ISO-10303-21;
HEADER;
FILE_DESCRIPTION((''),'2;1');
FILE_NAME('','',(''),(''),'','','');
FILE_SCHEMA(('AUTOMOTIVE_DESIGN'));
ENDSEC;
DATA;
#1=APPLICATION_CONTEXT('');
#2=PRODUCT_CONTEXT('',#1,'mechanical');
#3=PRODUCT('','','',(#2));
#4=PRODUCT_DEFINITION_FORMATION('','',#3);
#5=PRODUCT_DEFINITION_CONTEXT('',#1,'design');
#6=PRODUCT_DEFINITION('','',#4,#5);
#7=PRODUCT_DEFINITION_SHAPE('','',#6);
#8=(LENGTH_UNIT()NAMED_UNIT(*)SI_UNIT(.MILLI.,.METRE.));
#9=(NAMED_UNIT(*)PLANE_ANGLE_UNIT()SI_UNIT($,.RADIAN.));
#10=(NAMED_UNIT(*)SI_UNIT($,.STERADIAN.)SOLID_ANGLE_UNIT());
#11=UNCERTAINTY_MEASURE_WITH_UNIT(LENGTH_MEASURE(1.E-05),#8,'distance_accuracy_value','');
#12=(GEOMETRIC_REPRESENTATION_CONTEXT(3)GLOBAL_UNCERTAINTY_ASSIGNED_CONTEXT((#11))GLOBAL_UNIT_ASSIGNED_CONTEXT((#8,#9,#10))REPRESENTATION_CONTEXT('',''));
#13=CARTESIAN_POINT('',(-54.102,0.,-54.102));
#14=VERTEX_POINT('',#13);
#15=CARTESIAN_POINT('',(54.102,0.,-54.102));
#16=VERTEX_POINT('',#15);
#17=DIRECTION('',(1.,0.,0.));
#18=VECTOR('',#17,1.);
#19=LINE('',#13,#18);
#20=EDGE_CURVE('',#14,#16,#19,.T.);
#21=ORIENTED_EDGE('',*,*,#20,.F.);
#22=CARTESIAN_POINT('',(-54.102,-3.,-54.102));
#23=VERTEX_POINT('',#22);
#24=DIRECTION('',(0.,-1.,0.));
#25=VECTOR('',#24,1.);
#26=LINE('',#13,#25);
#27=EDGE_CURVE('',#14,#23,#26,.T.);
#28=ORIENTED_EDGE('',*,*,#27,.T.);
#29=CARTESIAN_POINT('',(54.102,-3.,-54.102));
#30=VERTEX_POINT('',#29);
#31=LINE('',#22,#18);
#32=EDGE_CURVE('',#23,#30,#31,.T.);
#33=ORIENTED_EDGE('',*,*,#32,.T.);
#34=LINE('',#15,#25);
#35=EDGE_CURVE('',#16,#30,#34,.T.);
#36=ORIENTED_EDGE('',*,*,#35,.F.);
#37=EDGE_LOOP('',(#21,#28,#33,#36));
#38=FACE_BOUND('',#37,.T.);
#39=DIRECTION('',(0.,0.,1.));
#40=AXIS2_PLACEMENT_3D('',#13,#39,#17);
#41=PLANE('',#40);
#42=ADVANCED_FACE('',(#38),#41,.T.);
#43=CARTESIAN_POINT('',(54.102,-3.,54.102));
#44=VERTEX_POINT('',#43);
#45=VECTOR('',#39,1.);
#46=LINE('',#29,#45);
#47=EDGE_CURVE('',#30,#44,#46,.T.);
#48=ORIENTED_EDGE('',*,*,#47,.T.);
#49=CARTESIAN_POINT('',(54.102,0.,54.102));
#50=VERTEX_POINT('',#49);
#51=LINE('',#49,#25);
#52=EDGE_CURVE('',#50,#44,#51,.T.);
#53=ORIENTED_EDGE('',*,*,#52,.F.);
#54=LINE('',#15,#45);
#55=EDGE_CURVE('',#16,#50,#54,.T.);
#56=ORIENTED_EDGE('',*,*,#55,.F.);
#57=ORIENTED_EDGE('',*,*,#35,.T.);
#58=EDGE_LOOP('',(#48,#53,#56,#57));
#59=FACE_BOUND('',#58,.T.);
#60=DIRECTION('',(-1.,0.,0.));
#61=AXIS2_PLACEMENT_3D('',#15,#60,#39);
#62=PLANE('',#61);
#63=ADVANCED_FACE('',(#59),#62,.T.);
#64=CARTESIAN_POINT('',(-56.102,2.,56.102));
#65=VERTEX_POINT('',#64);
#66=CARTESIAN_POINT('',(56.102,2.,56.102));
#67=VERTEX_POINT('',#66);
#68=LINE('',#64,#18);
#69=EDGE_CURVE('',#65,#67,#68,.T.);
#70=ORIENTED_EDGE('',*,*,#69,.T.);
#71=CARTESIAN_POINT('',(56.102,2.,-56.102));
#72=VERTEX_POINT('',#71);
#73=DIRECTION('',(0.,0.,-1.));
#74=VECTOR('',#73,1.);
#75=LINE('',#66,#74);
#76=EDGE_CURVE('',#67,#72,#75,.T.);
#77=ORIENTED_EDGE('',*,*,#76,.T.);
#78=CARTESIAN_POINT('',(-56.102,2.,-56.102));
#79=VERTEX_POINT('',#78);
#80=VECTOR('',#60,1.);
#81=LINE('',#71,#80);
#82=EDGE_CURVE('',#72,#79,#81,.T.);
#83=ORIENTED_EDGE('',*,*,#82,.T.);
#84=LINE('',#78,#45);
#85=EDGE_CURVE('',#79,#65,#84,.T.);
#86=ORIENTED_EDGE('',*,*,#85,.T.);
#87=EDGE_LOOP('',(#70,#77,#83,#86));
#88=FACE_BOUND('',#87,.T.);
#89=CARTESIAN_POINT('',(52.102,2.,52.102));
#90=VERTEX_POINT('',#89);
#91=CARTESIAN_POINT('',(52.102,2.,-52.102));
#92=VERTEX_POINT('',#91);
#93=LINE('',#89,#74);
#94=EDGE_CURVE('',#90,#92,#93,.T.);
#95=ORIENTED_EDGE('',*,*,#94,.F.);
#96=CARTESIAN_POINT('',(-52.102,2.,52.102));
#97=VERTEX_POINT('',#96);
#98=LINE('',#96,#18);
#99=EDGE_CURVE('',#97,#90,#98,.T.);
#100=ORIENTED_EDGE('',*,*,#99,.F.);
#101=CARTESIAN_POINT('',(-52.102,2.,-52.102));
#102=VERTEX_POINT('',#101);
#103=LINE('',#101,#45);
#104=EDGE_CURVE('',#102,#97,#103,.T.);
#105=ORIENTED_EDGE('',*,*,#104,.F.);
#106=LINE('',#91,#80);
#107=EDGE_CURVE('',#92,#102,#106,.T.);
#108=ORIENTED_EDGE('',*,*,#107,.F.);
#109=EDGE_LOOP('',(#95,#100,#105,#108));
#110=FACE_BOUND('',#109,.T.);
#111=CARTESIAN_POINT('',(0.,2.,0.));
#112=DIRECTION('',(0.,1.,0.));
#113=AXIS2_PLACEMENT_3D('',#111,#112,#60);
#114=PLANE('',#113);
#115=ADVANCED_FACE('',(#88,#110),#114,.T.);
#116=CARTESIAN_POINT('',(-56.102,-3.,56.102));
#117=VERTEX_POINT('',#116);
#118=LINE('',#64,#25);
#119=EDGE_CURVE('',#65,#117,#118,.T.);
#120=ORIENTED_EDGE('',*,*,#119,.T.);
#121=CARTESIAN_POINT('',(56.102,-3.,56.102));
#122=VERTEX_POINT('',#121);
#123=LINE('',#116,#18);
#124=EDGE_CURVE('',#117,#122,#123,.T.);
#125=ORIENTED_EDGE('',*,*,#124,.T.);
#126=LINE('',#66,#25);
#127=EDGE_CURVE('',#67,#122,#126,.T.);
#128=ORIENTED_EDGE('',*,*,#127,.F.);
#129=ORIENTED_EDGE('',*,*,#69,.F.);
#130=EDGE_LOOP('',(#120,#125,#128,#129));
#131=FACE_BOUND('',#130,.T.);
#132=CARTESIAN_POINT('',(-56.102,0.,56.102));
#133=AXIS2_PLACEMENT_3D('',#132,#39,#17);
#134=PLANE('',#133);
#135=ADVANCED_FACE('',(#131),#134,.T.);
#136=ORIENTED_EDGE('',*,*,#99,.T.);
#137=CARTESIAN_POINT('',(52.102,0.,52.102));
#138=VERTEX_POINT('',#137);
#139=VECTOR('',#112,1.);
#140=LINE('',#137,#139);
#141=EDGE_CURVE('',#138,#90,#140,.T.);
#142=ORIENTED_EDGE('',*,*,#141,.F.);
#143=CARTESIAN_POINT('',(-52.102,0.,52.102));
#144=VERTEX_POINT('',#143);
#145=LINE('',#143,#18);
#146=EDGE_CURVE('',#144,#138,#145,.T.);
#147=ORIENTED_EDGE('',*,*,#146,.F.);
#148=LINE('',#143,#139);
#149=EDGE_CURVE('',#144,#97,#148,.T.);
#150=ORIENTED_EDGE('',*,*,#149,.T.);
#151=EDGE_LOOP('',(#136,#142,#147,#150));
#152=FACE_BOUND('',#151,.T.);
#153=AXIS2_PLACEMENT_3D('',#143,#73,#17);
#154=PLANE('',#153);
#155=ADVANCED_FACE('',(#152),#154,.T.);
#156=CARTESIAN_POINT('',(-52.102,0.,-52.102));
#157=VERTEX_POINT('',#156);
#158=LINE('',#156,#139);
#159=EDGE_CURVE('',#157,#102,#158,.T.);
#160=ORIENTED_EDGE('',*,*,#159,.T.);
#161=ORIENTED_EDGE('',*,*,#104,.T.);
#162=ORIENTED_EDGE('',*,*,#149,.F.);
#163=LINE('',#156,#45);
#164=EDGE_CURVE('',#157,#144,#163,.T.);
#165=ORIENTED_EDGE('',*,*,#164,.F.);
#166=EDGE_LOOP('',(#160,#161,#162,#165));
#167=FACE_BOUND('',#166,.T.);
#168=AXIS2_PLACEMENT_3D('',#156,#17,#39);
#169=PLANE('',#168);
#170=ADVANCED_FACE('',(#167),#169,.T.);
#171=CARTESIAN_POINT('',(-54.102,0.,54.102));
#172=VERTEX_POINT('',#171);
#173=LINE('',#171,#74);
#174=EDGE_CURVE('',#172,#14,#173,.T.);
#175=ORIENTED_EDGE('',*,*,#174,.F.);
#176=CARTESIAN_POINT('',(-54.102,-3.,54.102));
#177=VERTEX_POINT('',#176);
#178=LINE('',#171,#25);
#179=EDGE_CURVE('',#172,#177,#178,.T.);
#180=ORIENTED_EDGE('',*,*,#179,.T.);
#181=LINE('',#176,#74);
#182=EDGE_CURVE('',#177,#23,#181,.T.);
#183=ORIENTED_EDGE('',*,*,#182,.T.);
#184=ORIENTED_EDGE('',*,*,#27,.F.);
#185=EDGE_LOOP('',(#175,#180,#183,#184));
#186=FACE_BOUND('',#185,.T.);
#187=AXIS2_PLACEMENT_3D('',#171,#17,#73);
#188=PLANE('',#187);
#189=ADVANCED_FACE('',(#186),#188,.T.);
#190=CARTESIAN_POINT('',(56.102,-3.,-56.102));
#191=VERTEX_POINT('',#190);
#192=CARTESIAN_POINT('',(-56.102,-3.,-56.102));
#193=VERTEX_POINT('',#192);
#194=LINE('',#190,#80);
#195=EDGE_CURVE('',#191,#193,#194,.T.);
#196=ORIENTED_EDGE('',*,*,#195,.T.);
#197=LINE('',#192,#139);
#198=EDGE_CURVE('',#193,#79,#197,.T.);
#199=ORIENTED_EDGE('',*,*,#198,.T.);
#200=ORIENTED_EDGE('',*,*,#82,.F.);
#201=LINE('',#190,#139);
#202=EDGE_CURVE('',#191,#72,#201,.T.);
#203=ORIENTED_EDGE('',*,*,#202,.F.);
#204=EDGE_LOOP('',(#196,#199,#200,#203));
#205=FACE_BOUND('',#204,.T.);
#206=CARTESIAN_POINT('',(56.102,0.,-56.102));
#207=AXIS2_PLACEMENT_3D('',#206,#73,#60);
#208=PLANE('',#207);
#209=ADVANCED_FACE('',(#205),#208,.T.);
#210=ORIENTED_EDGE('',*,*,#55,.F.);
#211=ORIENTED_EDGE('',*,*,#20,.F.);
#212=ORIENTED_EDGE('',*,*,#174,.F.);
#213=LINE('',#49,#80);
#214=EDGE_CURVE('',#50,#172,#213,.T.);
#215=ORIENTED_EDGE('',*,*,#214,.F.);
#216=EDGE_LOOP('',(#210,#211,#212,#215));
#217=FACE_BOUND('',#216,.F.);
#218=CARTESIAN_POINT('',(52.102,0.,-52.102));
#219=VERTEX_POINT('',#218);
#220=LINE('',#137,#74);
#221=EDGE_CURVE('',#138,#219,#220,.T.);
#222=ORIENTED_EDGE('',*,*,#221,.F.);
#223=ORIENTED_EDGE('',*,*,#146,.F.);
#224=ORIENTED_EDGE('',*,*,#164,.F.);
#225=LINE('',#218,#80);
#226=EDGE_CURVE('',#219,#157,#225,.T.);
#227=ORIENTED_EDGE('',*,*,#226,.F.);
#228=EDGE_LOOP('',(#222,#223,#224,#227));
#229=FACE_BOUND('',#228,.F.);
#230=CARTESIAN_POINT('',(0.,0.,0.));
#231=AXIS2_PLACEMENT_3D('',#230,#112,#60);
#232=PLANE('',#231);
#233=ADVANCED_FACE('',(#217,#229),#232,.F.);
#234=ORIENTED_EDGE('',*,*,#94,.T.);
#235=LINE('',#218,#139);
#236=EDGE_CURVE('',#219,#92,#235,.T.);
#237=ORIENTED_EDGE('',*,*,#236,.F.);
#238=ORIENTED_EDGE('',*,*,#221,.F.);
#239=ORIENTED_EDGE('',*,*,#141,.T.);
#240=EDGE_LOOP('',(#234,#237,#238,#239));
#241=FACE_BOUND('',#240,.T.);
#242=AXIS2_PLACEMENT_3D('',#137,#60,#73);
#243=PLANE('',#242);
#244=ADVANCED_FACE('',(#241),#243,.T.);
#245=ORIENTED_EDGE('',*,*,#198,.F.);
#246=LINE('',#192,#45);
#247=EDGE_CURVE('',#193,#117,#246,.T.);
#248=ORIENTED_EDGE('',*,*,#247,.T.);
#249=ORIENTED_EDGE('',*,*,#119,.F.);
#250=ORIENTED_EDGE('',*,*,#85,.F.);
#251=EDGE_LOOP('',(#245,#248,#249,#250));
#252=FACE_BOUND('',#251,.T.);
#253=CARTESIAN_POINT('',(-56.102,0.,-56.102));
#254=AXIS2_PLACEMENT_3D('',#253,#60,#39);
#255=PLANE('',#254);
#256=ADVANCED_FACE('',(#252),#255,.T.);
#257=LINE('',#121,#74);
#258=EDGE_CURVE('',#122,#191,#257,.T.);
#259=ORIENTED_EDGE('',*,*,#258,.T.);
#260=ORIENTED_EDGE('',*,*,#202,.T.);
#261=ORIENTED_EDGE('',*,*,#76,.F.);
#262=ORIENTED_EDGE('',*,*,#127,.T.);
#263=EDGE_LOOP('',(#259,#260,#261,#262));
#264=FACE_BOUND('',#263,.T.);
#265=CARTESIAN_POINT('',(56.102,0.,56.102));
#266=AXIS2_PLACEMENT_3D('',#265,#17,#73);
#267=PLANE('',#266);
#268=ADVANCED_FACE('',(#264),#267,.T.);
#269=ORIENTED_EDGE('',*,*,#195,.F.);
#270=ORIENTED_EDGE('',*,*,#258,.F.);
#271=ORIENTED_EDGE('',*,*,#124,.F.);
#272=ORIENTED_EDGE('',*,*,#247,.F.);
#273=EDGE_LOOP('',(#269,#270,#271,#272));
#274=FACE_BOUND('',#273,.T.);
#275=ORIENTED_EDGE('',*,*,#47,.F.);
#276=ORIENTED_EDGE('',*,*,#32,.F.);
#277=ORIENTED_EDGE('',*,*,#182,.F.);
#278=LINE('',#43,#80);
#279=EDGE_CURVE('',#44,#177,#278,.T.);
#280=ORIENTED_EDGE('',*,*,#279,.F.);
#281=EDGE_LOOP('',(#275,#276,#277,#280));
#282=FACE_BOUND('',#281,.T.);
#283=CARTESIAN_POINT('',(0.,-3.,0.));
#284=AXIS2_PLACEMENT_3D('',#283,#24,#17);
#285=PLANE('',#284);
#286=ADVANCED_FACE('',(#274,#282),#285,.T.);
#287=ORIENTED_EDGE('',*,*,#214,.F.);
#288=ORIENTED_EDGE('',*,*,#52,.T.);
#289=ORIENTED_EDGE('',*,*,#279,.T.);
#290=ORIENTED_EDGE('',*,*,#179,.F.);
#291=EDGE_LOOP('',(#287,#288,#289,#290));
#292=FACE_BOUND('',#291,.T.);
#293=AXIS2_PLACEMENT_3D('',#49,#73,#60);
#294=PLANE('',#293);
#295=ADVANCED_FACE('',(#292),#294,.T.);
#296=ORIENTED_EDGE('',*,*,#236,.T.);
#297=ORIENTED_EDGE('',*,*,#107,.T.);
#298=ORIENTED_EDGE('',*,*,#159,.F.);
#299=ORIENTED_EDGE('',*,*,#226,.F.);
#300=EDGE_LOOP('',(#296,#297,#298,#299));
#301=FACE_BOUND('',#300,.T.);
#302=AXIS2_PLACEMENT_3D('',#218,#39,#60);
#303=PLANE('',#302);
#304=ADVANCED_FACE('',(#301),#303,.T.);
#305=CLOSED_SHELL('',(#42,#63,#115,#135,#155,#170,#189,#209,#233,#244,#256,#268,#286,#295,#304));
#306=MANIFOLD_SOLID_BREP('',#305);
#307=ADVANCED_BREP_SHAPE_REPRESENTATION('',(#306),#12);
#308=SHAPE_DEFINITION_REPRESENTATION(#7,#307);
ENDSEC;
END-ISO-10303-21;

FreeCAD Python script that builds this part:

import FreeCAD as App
import Part
import Sketcher
from FreeCAD import Vector


def add_polygon(sketch, points):
    """Adds a closed chain of lines whose ends are joined by coincident constraints."""
    first, n = sketch.GeometryCount, len(points)
    for a, b in zip(points, points[1:] + points[:1]):
        sketch.addGeometry(Part.LineSegment(App.Vector(*a, 0), App.Vector(*b, 0)), False)
    for i in range(n):
        sketch.addConstraint(Sketcher.Constraint("Coincident", first + i, 2, first + (i + 1) % n, 1))

doc = App.newDocument("Part")
params = doc.addObject("Spreadsheet::Sheet", "Params")
for row, (alias, value) in enumerate([
    ("pad1_length", "2 mm"),
    ("pad2_length", "3 mm"),
], start=1):
    params.set(f"A{row}", alias)
    params.set(f"B{row}", "=" + value)
    params.setAlias(f"B{row}", alias)

body = doc.addObject("PartDesign::Body", "Body")

# Sketch on XZ plane
sketch1 = body.newObject("Sketcher::SketchObject", "Sketch")
sketch1.AttachmentSupport = (doc.getObject("XZ_Plane"), [""])
sketch1.MapMode = "FlatFace"
add_polygon(sketch1, [(-56.102, -56.102), (-56.102, 56.102), (56.102, 56.102), (56.102, -56.102)])  # lines 0-3
add_polygon(sketch1, [(52.102, 52.102), (-52.102, 52.102), (-52.102, -52.102), (52.102, -52.102)])  # lines 4-7
sketch1.addConstraint([
    Sketcher.Constraint("Vertical", 0),
    Sketcher.Constraint("Horizontal", 1),
    Sketcher.Constraint("Vertical", 2),
    Sketcher.Constraint("Horizontal", 3),
    Sketcher.Constraint("Horizontal", 4),
    Sketcher.Constraint("Vertical", 5),
    Sketcher.Constraint("Horizontal", 6),
    Sketcher.Constraint("Vertical", 7),
    Sketcher.Constraint("Symmetric", 0, 2, 2, 2, -1, 1),
    Sketcher.Constraint("Symmetric", 4, 2, 6, 2, -1, 1),
    Sketcher.Constraint("Equal", 3, 0),
    Sketcher.Constraint("Equal", 6, 5),
    Sketcher.Constraint("DistanceX", 0, 2, 4, 2, 4.0),
    Sketcher.Constraint("DistanceX", 1, 1, 1, 2, 112.204),
])
pad1 = body.newObject("PartDesign::Pad", "Pad")
pad1.Profile = sketch1
pad1.setExpression("Length", "Params.pad1_length")
pad1.Reversed = True

# Sketch on XZ plane
sketch2 = body.newObject("Sketcher::SketchObject", "Sketch001")
sketch2.AttachmentSupport = (doc.getObject("XZ_Plane"), [""])
sketch2.MapMode = "FlatFace"
add_polygon(sketch2, [(56.102, -56.102), (56.102, 56.102), (-56.102, 56.102), (-56.102, -56.102)])  # lines 0-3
add_polygon(sketch2, [(-54.102, 54.102), (54.102, 54.102), (54.102, -54.102), (-54.102, -54.102)])  # lines 4-7
sketch2.addConstraint([
    Sketcher.Constraint("Vertical", 0),
    Sketcher.Constraint("Horizontal", 1),
    Sketcher.Constraint("Vertical", 2),
    Sketcher.Constraint("Horizontal", 3),
    Sketcher.Constraint("Horizontal", 4),
    Sketcher.Constraint("Vertical", 5),
    Sketcher.Constraint("Horizontal", 6),
    Sketcher.Constraint("Vertical", 7),
    Sketcher.Constraint("Symmetric", 0, 2, 2, 2, -1, 1),
    Sketcher.Constraint("Symmetric", 4, 2, 6, 2, -1, 1),
    Sketcher.Constraint("Equal", 3, 0),
    Sketcher.Constraint("Equal", 6, 5),
    Sketcher.Constraint("DistanceX", 4, 2, 0, 2, 2.0),
    Sketcher.Constraint("DistanceX", 1, 2, 1, 1, 112.204),
])
pad2 = body.newObject("PartDesign::Pad", "Pad001")
pad2.Profile = sketch2
pad2.setExpression("Length", "Params.pad2_length")

doc.recompute()
